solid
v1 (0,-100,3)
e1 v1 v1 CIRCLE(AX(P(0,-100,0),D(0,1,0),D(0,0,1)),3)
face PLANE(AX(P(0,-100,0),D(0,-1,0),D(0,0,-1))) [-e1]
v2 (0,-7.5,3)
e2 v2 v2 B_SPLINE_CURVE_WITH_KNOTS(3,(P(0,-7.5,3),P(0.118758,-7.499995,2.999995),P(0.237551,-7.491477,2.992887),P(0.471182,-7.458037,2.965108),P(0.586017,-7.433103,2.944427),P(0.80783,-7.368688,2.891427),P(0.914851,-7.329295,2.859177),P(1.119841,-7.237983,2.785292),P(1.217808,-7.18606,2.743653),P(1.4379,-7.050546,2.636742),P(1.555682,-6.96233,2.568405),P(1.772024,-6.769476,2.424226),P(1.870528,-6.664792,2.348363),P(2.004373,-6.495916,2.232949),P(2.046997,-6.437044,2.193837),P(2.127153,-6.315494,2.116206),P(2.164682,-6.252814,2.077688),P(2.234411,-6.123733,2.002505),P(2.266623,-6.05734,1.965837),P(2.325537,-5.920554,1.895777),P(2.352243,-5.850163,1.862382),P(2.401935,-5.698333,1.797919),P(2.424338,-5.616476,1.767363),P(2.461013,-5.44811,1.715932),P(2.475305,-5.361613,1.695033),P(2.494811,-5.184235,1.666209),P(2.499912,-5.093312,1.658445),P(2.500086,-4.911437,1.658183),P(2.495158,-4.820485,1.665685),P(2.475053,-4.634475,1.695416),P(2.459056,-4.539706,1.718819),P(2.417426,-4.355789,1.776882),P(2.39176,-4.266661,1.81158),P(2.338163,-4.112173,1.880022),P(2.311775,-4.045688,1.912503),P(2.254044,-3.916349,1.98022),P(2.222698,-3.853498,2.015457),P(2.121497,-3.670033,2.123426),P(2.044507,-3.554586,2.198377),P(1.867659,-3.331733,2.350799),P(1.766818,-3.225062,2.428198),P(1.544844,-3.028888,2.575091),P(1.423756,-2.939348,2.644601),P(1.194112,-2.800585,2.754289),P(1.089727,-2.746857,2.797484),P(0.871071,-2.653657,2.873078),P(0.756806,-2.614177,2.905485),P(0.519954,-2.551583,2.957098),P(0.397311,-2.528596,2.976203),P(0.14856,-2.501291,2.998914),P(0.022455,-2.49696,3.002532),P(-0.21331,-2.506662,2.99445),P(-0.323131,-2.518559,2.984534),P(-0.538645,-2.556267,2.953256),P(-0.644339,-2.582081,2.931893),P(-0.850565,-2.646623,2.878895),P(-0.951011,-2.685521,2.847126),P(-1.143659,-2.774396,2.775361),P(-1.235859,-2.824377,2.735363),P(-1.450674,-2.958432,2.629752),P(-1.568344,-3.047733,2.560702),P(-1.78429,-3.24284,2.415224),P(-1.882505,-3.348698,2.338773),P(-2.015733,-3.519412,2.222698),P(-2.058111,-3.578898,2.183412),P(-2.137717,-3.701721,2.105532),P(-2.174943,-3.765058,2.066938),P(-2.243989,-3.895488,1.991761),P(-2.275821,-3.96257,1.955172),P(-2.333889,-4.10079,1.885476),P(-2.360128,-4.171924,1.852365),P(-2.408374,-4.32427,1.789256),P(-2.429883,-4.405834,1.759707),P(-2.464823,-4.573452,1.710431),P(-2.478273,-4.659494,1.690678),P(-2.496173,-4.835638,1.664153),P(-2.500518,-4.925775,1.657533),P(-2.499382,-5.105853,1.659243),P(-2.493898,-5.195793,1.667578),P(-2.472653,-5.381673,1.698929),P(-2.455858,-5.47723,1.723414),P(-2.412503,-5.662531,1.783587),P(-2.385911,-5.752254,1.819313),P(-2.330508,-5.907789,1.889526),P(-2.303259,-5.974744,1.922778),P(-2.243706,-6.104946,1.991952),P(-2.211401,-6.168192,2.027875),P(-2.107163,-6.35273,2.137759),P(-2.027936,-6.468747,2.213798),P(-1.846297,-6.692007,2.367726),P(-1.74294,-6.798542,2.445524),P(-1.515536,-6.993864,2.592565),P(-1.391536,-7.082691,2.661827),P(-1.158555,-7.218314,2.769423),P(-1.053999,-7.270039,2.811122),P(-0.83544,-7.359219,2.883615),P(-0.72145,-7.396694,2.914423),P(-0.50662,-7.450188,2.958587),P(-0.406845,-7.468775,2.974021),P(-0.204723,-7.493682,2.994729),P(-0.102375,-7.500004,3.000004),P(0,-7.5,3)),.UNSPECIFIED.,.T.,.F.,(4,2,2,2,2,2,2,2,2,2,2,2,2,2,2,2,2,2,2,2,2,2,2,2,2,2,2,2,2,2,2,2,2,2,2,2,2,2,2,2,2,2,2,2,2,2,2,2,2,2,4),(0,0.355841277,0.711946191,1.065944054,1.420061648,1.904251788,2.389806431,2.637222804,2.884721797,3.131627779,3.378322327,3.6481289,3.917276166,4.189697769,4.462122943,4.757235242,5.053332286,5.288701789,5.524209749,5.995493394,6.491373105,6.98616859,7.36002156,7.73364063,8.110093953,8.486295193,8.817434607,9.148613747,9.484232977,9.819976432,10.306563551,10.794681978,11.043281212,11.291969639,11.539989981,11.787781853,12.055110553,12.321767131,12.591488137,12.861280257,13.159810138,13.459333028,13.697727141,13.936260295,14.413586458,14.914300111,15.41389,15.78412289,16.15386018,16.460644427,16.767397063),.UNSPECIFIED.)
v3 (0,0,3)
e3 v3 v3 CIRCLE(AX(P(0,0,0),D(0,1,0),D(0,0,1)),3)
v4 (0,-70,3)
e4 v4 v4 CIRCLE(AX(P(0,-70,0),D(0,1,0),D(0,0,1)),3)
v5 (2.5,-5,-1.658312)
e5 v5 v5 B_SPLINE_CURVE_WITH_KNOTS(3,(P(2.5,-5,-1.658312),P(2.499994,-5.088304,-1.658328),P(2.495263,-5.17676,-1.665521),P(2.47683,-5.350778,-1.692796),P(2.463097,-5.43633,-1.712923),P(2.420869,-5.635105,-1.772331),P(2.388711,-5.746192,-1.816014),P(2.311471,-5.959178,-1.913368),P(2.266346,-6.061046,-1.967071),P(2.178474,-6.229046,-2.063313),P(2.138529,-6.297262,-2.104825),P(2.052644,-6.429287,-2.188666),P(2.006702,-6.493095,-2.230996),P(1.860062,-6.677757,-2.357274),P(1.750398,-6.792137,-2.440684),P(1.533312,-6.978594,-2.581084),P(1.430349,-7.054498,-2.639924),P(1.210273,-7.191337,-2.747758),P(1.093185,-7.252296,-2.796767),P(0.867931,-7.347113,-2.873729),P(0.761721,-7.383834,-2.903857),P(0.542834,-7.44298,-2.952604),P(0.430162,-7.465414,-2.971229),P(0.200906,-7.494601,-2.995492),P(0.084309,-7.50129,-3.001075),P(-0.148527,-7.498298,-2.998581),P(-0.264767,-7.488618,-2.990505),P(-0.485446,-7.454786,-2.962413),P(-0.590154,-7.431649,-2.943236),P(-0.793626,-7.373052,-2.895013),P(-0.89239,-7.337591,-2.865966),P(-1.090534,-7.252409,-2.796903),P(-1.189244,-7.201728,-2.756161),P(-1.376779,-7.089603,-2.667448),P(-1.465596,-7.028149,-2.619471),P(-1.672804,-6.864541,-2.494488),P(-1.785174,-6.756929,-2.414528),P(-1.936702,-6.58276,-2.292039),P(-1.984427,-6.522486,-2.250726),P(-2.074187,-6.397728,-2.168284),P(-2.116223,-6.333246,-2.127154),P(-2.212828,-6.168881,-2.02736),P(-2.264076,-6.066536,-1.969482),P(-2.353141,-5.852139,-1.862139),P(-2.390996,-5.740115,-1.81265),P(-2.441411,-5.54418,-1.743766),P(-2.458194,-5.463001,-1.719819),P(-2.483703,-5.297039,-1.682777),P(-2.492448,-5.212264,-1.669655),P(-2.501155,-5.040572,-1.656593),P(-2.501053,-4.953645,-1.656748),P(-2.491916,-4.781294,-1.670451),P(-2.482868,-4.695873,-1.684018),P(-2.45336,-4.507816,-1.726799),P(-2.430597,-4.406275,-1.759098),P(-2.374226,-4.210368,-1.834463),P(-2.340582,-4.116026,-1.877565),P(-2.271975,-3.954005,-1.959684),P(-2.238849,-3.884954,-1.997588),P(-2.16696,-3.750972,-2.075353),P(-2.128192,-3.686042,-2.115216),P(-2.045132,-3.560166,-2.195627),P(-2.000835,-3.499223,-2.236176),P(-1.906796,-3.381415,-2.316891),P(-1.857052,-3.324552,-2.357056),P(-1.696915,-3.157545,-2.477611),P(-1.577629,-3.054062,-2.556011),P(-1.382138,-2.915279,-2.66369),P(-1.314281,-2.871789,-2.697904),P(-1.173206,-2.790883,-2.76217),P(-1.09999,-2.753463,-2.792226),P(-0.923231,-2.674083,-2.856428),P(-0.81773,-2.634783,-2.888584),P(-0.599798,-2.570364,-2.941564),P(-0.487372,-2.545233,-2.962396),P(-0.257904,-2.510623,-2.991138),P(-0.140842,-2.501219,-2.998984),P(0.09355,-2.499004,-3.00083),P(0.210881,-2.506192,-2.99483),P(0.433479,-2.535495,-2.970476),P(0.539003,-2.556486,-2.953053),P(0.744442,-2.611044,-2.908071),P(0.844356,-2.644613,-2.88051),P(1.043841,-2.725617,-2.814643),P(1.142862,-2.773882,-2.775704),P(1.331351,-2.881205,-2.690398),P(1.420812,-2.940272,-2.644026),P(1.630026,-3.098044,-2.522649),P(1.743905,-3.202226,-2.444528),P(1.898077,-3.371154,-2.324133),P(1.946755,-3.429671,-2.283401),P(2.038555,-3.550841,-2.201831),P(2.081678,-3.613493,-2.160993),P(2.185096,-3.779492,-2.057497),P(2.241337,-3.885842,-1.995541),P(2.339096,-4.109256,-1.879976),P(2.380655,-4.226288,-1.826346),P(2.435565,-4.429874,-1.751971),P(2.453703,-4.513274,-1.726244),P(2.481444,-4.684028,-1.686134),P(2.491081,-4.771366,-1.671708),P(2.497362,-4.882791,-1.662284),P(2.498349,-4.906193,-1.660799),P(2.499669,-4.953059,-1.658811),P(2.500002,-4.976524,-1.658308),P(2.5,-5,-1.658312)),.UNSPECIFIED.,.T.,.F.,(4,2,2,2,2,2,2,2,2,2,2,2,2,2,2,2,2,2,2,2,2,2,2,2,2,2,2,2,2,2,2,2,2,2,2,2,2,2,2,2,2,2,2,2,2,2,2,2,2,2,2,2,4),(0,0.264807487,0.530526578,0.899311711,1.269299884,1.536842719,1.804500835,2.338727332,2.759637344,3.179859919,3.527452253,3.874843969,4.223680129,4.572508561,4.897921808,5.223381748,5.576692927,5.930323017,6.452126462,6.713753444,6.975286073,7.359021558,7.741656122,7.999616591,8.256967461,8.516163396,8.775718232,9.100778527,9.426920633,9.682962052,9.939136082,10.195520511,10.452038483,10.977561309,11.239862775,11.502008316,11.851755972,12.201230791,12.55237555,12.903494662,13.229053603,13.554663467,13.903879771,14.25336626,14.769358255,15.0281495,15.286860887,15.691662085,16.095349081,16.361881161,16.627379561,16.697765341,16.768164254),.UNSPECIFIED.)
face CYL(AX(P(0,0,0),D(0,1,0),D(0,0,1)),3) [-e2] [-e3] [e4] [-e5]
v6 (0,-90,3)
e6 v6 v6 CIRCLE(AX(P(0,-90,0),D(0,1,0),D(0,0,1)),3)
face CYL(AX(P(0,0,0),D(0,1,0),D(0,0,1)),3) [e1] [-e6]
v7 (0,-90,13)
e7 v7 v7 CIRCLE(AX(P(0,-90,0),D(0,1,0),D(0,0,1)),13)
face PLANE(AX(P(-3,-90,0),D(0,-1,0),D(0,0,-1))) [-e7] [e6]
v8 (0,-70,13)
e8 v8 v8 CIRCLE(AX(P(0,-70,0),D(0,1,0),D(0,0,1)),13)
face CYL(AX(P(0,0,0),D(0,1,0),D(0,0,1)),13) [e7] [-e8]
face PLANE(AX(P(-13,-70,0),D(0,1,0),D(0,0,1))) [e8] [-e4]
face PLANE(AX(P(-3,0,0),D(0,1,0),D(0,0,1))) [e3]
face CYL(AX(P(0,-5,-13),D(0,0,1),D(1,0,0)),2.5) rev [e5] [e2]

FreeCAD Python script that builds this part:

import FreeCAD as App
import Part
import Sketcher
Q = App.Units.Quantity

doc = App.newDocument("Part")
body = doc.addObject("PartDesign::Body", "Body")

# Sketch on XY plane
sketch1 = body.newObject("Sketcher::SketchObject", "Sketch")
sketch1.AttachmentSupport = (doc.getObject("XY_Plane"), [""])
sketch1.MapMode = "FlatFace"
sketch1.addGeometry([
    Part.LineSegment(App.Vector(0, -100, 0), App.Vector(0, 0, 0)),  # 0
    Part.LineSegment(App.Vector(0, 0, 0), App.Vector(-3, 0, 0)),  # 1
    Part.LineSegment(App.Vector(-3, 0, 0), App.Vector(-3, -70, 0)),  # 2
    Part.LineSegment(App.Vector(-3, -70, 0), App.Vector(-13, -70, 0)),  # 3
    Part.LineSegment(App.Vector(-13, -70, 0), App.Vector(-13, -90, 0)),  # 4
    Part.LineSegment(App.Vector(-13, -90, 0), App.Vector(-3, -90, 0)),  # 5
    Part.LineSegment(App.Vector(-3, -90, 0), App.Vector(-3, -100, 0)),  # 6
    Part.LineSegment(App.Vector(-3, -100, 0), App.Vector(0, -100, 0)),  # 7
], False)
sketch1.addConstraint([
    Sketcher.Constraint("Coincident", 0, 2, 1, 1),
    Sketcher.Constraint("Coincident", 1, 2, 2, 1),
    Sketcher.Constraint("Coincident", 2, 2, 3, 1),
    Sketcher.Constraint("Coincident", 3, 2, 4, 1),
    Sketcher.Constraint("Coincident", 4, 2, 5, 1),
    Sketcher.Constraint("Coincident", 5, 2, 6, 1),
    Sketcher.Constraint("Coincident", 6, 2, 7, 1),
    Sketcher.Constraint("Coincident", 7, 2, 0, 1),
    Sketcher.Constraint("Vertical", 0),
    Sketcher.Constraint("Horizontal", 1),
    Sketcher.Constraint("Vertical", 2),
    Sketcher.Constraint("Horizontal", 3),
    Sketcher.Constraint("Vertical", 4),
    Sketcher.Constraint("Horizontal", 5),
    Sketcher.Constraint("Vertical", 6),
    Sketcher.Constraint("Horizontal", 7),
    Sketcher.Constraint("Coincident", 0, 2, -1, 1),
    Sketcher.Constraint("Vertical", 2, 2, 5, 2),
    Sketcher.Constraint("Equal", 5, 6),
    Sketcher.Constraint("DistanceX", 1, 2, 1, 1, Q("3 mm")),
    Sketcher.Constraint("DistanceX", 3, 2, 3, 1, Q("10 mm")),
    Sketcher.Constraint("DistanceY", 0, 1, 0, 2, Q("100 mm")),
    Sketcher.Constraint("DistanceY", 2, 2, 2, 1, Q("70 mm")),
])
revolution = body.newObject("PartDesign::Revolution", "Revolution")
revolution.Profile = sketch1
revolution.ReferenceAxis = (sketch1, ["V_Axis"])
revolution.Angle = 360

# Sketch on XY plane
sketch2 = body.newObject("Sketcher::SketchObject", "Sketch001")
sketch2.AttachmentSupport = (doc.getObject("XY_Plane"), [""])
sketch2.MapMode = "FlatFace"
sketch2.addGeometry(Part.Circle(App.Vector(0, -5, 0), App.Vector(0, 0, 1), 2.5), False)
sketch2.addConstraint([
    Sketcher.Constraint("PointOnObject", 0, 3, -2),
    Sketcher.Constraint("Diameter", 0, Q("5 mm")),
    Sketcher.Constraint("DistanceY", 0, 3, -1, 1, Q("5 mm")),
])
pocket1 = body.newObject("PartDesign::Pocket", "Pocket")
pocket1.Profile = sketch2
pocket1.Type = "ThroughAll"
pocket1.Midplane = True

doc.recompute()
